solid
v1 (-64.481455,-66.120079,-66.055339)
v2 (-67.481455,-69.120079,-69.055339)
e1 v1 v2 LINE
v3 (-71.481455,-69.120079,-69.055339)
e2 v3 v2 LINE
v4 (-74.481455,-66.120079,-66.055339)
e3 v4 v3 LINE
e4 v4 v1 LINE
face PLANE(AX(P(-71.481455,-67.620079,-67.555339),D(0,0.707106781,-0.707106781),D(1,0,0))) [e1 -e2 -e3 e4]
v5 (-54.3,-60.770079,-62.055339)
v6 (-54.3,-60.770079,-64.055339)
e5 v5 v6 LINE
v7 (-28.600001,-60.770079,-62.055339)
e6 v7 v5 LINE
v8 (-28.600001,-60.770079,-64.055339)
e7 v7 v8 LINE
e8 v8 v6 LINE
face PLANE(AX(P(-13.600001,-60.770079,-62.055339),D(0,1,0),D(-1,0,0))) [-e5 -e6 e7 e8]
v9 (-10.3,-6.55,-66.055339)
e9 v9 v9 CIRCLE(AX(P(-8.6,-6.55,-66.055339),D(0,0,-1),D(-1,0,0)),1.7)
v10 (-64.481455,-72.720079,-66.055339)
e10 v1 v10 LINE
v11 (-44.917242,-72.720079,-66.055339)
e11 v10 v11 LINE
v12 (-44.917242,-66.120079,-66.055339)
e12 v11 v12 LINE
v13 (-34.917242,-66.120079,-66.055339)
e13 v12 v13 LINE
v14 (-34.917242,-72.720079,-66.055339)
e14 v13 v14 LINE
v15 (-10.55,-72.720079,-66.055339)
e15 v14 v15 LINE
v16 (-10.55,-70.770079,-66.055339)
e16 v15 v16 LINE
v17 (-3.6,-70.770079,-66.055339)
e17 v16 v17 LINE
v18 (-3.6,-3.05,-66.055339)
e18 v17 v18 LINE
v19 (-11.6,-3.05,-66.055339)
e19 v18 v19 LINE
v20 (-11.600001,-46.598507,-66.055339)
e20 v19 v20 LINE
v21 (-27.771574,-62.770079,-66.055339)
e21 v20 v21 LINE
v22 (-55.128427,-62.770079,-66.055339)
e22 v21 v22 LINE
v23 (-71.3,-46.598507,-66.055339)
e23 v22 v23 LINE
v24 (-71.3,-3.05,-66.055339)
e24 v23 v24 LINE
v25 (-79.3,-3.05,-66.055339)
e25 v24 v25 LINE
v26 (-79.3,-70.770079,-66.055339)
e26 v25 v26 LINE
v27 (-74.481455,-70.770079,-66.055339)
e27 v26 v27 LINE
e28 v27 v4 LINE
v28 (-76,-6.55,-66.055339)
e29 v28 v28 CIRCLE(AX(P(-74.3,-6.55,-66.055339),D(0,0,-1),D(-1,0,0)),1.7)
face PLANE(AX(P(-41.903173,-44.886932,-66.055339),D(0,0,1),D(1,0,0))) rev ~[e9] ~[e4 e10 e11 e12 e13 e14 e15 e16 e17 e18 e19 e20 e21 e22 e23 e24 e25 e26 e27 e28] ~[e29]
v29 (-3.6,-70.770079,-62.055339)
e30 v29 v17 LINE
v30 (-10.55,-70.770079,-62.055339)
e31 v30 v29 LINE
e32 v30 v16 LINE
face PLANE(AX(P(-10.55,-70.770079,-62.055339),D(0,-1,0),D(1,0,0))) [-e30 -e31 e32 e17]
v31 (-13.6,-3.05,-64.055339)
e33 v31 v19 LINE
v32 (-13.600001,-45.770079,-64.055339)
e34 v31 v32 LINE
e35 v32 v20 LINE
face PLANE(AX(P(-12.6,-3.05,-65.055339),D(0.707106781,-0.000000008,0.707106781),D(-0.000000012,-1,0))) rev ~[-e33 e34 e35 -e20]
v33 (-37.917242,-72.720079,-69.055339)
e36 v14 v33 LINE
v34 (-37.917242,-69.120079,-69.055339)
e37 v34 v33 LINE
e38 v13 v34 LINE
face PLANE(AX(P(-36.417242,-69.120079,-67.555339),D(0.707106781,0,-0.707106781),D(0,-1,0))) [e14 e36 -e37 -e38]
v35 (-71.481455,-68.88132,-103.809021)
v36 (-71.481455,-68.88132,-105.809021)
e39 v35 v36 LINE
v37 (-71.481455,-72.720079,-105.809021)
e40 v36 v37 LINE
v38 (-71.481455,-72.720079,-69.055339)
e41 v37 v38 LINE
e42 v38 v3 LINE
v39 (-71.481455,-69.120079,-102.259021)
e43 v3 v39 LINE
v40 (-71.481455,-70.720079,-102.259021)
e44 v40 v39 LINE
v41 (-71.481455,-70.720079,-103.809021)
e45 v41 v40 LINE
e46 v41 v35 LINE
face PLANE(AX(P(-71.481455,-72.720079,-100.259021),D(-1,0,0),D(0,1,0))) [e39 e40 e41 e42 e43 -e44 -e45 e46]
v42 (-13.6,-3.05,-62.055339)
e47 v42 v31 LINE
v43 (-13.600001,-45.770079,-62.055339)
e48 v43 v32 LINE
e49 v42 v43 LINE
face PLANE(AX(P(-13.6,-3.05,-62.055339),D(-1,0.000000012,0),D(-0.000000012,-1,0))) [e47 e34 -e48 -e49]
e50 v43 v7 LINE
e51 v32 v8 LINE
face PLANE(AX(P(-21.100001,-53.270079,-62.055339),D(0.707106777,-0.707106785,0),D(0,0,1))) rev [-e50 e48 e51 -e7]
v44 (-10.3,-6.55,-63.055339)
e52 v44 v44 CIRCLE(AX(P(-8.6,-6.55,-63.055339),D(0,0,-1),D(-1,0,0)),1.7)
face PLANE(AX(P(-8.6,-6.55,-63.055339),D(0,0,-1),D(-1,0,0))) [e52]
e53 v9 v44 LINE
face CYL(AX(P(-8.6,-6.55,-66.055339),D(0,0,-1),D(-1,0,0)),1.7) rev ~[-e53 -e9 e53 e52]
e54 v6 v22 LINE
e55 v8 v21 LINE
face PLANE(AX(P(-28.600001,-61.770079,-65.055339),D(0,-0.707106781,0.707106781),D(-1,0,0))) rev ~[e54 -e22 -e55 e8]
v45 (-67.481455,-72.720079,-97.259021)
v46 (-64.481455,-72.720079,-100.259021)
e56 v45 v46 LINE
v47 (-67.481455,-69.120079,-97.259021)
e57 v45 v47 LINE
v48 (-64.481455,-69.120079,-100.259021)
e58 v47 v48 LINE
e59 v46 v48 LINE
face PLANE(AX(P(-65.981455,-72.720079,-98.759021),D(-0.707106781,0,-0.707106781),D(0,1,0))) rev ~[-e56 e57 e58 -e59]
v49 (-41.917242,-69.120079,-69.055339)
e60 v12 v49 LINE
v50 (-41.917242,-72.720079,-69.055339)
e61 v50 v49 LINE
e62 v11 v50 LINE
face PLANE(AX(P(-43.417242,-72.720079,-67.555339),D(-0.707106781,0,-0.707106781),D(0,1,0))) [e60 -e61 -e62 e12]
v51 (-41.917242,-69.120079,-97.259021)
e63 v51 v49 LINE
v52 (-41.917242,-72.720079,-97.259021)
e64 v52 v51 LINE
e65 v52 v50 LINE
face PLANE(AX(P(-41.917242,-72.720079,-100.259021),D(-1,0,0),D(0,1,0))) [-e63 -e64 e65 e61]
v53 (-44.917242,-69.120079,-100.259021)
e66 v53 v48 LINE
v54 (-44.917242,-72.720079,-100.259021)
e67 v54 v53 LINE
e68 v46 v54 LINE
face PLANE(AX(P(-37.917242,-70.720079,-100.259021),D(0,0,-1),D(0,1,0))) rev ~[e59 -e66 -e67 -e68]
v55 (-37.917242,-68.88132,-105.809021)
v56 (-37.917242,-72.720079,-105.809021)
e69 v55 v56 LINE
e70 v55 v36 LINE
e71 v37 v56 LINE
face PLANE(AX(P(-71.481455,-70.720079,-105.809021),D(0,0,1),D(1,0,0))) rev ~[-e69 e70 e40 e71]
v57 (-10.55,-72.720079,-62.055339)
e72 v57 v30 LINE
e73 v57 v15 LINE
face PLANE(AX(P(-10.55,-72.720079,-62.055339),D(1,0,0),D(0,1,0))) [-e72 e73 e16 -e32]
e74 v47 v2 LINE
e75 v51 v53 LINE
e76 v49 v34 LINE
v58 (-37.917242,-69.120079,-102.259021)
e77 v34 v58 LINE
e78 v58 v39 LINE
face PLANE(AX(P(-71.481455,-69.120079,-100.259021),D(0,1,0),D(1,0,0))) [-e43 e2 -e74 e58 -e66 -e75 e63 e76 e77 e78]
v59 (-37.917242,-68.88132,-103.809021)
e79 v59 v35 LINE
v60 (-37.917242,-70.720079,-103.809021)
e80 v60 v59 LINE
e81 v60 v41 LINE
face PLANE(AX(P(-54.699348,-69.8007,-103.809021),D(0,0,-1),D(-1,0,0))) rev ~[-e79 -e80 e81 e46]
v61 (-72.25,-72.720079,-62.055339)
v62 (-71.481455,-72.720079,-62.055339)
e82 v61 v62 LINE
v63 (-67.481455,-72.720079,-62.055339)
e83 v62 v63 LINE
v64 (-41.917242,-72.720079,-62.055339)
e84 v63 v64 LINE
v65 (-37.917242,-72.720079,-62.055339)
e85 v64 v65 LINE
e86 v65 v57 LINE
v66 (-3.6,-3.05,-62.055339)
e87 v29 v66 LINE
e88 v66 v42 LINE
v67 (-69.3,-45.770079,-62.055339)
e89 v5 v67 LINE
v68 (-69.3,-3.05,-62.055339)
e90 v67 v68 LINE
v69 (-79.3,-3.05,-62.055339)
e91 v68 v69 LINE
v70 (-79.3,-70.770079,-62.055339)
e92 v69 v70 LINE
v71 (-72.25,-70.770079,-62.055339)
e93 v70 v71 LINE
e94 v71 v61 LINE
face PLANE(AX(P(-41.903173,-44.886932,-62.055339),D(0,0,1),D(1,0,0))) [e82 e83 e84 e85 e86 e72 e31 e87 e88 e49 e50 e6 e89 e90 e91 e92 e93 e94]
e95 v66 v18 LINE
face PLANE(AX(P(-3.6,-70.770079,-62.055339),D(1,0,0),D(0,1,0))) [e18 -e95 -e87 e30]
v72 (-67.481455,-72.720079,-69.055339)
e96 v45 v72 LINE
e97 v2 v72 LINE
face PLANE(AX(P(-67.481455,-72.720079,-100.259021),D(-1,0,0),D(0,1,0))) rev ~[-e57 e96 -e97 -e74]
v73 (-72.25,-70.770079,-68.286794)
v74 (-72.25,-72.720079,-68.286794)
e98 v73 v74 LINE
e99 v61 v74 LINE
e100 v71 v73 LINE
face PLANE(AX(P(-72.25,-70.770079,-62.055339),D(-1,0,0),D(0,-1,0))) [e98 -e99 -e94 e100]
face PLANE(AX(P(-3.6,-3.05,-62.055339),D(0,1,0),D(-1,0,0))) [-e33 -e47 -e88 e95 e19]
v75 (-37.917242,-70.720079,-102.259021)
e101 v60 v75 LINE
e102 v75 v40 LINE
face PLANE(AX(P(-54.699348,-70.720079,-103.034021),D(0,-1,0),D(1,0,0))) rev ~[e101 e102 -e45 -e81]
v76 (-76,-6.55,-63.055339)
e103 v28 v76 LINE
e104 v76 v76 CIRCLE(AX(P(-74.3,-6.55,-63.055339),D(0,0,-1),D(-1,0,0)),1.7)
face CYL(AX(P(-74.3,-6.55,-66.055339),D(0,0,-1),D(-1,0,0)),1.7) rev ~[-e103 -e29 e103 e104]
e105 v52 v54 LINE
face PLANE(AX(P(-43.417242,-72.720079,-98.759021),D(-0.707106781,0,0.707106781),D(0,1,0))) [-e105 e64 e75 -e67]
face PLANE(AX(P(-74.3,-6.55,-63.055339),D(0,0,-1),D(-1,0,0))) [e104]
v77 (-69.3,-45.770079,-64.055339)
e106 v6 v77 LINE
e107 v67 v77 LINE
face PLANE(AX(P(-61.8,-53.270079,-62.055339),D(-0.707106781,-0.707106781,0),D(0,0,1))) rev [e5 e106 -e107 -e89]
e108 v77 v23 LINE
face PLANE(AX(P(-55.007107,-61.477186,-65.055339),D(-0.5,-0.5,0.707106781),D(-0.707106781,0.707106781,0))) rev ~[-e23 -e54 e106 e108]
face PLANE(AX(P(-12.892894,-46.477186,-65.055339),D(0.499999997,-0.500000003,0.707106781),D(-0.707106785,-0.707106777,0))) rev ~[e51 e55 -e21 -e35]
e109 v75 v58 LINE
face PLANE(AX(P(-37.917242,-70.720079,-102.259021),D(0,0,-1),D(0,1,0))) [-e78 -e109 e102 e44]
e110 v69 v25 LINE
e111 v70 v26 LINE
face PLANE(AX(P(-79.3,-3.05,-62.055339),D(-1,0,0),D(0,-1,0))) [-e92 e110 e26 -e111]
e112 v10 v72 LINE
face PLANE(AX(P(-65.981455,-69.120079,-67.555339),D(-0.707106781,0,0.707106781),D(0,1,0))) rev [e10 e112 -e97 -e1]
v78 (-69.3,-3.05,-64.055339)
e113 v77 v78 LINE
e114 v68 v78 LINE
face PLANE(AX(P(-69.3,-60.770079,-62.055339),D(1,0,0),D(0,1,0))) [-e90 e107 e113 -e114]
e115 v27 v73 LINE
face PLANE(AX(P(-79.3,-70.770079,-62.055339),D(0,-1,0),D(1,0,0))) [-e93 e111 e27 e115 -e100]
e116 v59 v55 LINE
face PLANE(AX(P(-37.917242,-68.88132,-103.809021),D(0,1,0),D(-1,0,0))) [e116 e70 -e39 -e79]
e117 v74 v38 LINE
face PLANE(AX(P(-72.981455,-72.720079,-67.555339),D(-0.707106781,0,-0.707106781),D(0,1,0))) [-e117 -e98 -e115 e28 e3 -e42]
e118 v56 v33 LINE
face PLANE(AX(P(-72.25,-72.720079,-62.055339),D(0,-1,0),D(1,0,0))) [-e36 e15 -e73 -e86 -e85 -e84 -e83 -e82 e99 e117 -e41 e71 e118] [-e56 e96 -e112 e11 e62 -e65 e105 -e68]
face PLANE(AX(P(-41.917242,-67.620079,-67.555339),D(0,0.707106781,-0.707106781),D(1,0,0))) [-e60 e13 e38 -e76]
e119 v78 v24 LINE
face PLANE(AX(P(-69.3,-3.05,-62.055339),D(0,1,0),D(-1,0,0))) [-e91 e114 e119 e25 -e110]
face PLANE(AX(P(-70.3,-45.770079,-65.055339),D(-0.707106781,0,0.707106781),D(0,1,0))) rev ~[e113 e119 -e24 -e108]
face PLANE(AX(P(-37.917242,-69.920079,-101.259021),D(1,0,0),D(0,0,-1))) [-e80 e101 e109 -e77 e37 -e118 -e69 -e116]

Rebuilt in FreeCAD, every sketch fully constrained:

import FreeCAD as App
import Part
import Sketcher
from FreeCAD import Vector
Q = App.Units.Quantity


def edges_at(feature, points):
    """Names of the edges that pass closest to the given points."""
    edges = feature.Shape.Edges
    near = lambda p: min(range(len(edges)), key=lambda i: edges[i].distToShape(Part.Vertex(*p))[0])
    return sorted({f"Edge{near(p) + 1}" for p in points})


def add_polygon(sketch, points):
    """Adds a closed chain of lines whose ends are joined by coincident constraints."""
    first, n = sketch.GeometryCount, len(points)
    for a, b in zip(points, points[1:] + points[:1]):
        sketch.addGeometry(Part.LineSegment(App.Vector(*a, 0), App.Vector(*b, 0)), False)
    for i in range(n):
        sketch.addConstraint(Sketcher.Constraint("Coincident", first + i, 2, first + (i + 1) % n, 1))

doc = App.newDocument("Part")
params = doc.addObject("Spreadsheet::Sheet", "Params")
for row, (alias, value) in enumerate([
    ("pad1_length", "2 mm"),
    ("sketch2_height", "5.55 mm"),
    ("pad2_length", "2 mm"),
    ("sketch3_height", "2 mm"),
    ("sketch3_width", "1.6 mm"),
    ("pad3_length", "33.564213 mm"),
    ("sketch4_width", "4 mm"),
    ("sketch4_height", "3.6 mm"),
    ("pad4_length", "38.203681 mm"),
    ("sketch5_width", "4 mm"),
    ("sketch5_width2", "10 mm"),
    ("sketch5_width3", "55.699999 mm"),
    ("sketch5_height", "3.6 mm"),
    ("sketch5_width4", "7.05 mm"),
    ("pad5_length", "4 mm"),
    ("chamfer_size", "3 mm"),
    ("chamfer2_size", "15 mm"),
    ("sketch6_diameter", "3.4 mm"),
    ("pocket1_length", "3 mm"),
    ("chamfer3_size", "2 mm"),
], start=1):
    params.set(f"A{row}", alias)
    params.set(f"B{row}", "=" + value)
    params.setAlias(f"B{row}", alias)

body = doc.addObject("PartDesign::Body", "Body")

sketch1 = body.newObject("Sketcher::SketchObject", "Sketch")
sketch1.AttachmentSupport = (doc.getObject("XY_Plane"), [""])
sketch1.MapMode = "FlatFace"
sketch1.AttachmentOffset = App.Placement(Vector(0, 0, -103.809021), App.Rotation())
add_polygon(sketch1, [(-37.9, -68.9), (-37.9, -70.7), (-71.5, -70.7), (-71.5, -68.9)])
sketch1.addConstraint(Sketcher.Constraint("Vertical", 0))
sketch1.addConstraint(Sketcher.Constraint("Horizontal", 1))
sketch1.addConstraint(Sketcher.Constraint("Vertical", 2))
sketch1.addConstraint(Sketcher.Constraint("Horizontal", 3))
sketch1.addConstraint(Sketcher.Constraint("DistanceY", 0, 2, 0, 1, Q("1.838759 mm")))
sketch1.addConstraint(Sketcher.Constraint("DistanceX", 1, 2, 1, 1, Q("33.564213 mm")))
sketch1.addConstraint(Sketcher.Constraint("DistanceX", 0, 2, -1, 1, Q("37.917242 mm")))
sketch1.addConstraint(Sketcher.Constraint("DistanceY", 0, 2, -1, 1, Q("70.720079 mm")))
pad1 = body.newObject("PartDesign::Pad", "Pad")
pad1.Profile = sketch1
pad1.setExpression("Length", "Params.pad1_length")
pad1.Reversed = True

sketch2 = body.newObject("Sketcher::SketchObject", "Sketch001")
sketch2.AttachmentSupport = (doc.getObject("XZ_Plane"), [""])
sketch2.MapMode = "FlatFace"
sketch2.AttachmentOffset = App.Placement(Vector(0, 0, 70.720079), App.Rotation())
add_polygon(sketch2, [(-71, -100), (-71, -106), (-38, -106), (-38, -100)])
sketch2.addConstraint(Sketcher.Constraint("Vertical", 0))
sketch2.addConstraint(Sketcher.Constraint("Horizontal", 1))
sketch2.addConstraint(Sketcher.Constraint("Vertical", 2))
sketch2.addConstraint(Sketcher.Constraint("Horizontal", 3))
sketch2.addConstraint(Sketcher.Constraint("DistanceY", 0, 2, 0, 1, Q("5.55 mm")))
sketch2.addConstraint(Sketcher.Constraint("DistanceX", 1, 1, 1, 2, Q("33.564213 mm")))
sketch2.addConstraint(Sketcher.Constraint("DistanceY", 0, 2, -1, 1, Q("105.809021 mm")))
sketch2.addConstraint(Sketcher.Constraint("DistanceX", 1, 2, -1, 1, Q("37.917242 mm")))
sketch2.setExpression("Constraints[8]", "Params.sketch2_height")
pad2 = body.newObject("PartDesign::Pad", "Pad001")
pad2.Profile = sketch2
pad2.setExpression("Length", "Params.pad2_length")

sketch3 = body.newObject("Sketcher::SketchObject", "Sketch002")
sketch3.AttachmentSupport = (doc.getObject("YZ_Plane"), [""])
sketch3.MapMode = "FlatFace"
sketch3.AttachmentOffset = App.Placement(Vector(0, 0, -37.917242), App.Rotation())
add_polygon(sketch3, [(-69.1, -100.3), (-70.7, -100.3), (-70.7, -102.3), (-69.1, -102.3)])
sketch3.addConstraint(Sketcher.Constraint("Horizontal", 0))
sketch3.addConstraint(Sketcher.Constraint("Vertical", 1))
sketch3.addConstraint(Sketcher.Constraint("Horizontal", 2))
sketch3.addConstraint(Sketcher.Constraint("Vertical", 3))
sketch3.addConstraint(Sketcher.Constraint("DistanceY", 1, 2, 1, 1, Q("2 mm")))
sketch3.addConstraint(Sketcher.Constraint("DistanceX", 0, 2, 0, 1, Q("1.6 mm")))
sketch3.addConstraint(Sketcher.Constraint("DistanceX", 0, 2, -1, 1, Q("70.720079 mm")))
sketch3.addConstraint(Sketcher.Constraint("DistanceY", 0, 2, -1, 1, Q("100.259021 mm")))
sketch3.setExpression("Constraints[8]", "Params.sketch3_height")
sketch3.setExpression("Constraints[9]", "Params.sketch3_width")
pad3 = body.newObject("PartDesign::Pad", "Pad002")
pad3.Profile = sketch3
pad3.setExpression("Length", "Params.pad3_length")
pad3.Reversed = True

sketch4 = body.newObject("Sketcher::SketchObject", "Sketch003")
sketch4.AttachmentSupport = (doc.getObject("XY_Plane"), [""])
sketch4.MapMode = "FlatFace"
sketch4.AttachmentOffset = App.Placement(Vector(0, 0, -100.259021), App.Rotation())
add_polygon(sketch4, [(-71.5, -69.1), (-71.5, -72.7), (-67.5, -72.7), (-67.5, -69.1)])
add_polygon(sketch4, [(-41.9, -69.1), (-41.9, -72.7), (-37.9, -72.7), (-37.9, -69.1)])
sketch4.addConstraint(Sketcher.Constraint("Vertical", 0))
sketch4.addConstraint(Sketcher.Constraint("Horizontal", 1))
sketch4.addConstraint(Sketcher.Constraint("Vertical", 2))
sketch4.addConstraint(Sketcher.Constraint("Horizontal", 3))
sketch4.addConstraint(Sketcher.Constraint("Vertical", 4))
sketch4.addConstraint(Sketcher.Constraint("Horizontal", 5))
sketch4.addConstraint(Sketcher.Constraint("Vertical", 6))
sketch4.addConstraint(Sketcher.Constraint("Horizontal", 7))
sketch4.addConstraint(Sketcher.Constraint("Horizontal", 1, 2, 4, 2))
sketch4.addConstraint(Sketcher.Constraint("Horizontal", 3, 2, 6, 2))
sketch4.addConstraint(Sketcher.Constraint("Equal", 3, 5))
sketch4.addConstraint(Sketcher.Constraint("DistanceX", 1, 1, 1, 2, Q("4 mm")))
sketch4.addConstraint(Sketcher.Constraint("DistanceY", 0, 2, 0, 1, Q("3.6 mm")))
sketch4.addConstraint(Sketcher.Constraint("DistanceY", 0, 2, -1, 1, Q("72.720079 mm")))
sketch4.addConstraint(Sketcher.Constraint("DistanceX", 4, 2, -1, 1, Q("41.917242 mm")))
sketch4.addConstraint(Sketcher.Constraint("DistanceX", 0, 2, -1, 1, Q("71.481455 mm")))
sketch4.setExpression("Constraints[19]", "Params.sketch4_width")
sketch4.setExpression("Constraints[20]", "Params.sketch4_height")
pad4 = body.newObject("PartDesign::Pad", "Pad003")
pad4.Profile = sketch4
pad4.setExpression("Length", "Params.pad4_length")

sketch5 = body.newObject("Sketcher::SketchObject", "Sketch004")
sketch5.AttachmentSupport = (doc.getObject("XY_Plane"), [""])
sketch5.MapMode = "FlatFace"
sketch5.AttachmentOffset = App.Placement(Vector(0, 0, -62.055339), App.Rotation())
add_polygon(sketch5, [(-79.3, -70.8), (-72.2, -70.8), (-72.2, -72.7), (-71.5, -72.7), (-71.5, -69.1), (-67.5, -69.1), (-67.5, -72.7), (-41.9, -72.7), (-41.9, -69.1), (-37.9, -69.1), (-37.9, -72.7), (-10.6, -72.7), (-10.6, -70.8), (-3.6, -70.8), (-3.6, -3), (-13.6, -3), (-13.6, -60.8), (-69.3, -60.8), (-69.3, -3), (-79.3, -3)])
sketch5.addConstraint(Sketcher.Constraint("Horizontal", 0))
sketch5.addConstraint(Sketcher.Constraint("Vertical", 1))
sketch5.addConstraint(Sketcher.Constraint("Horizontal", 2))
sketch5.addConstraint(Sketcher.Constraint("Vertical", 3))
sketch5.addConstraint(Sketcher.Constraint("Horizontal", 4))
sketch5.addConstraint(Sketcher.Constraint("Vertical", 5))
sketch5.addConstraint(Sketcher.Constraint("Horizontal", 6))
sketch5.addConstraint(Sketcher.Constraint("Vertical", 7))
sketch5.addConstraint(Sketcher.Constraint("Horizontal", 8))
sketch5.addConstraint(Sketcher.Constraint("Vertical", 9))
sketch5.addConstraint(Sketcher.Constraint("Horizontal", 10))
sketch5.addConstraint(Sketcher.Constraint("Vertical", 11))
sketch5.addConstraint(Sketcher.Constraint("Horizontal", 12))
sketch5.addConstraint(Sketcher.Constraint("Vertical", 13))
sketch5.addConstraint(Sketcher.Constraint("Horizontal", 14))
sketch5.addConstraint(Sketcher.Constraint("Vertical", 15))
sketch5.addConstraint(Sketcher.Constraint("Horizontal", 16))
sketch5.addConstraint(Sketcher.Constraint("Vertical", 17))
sketch5.addConstraint(Sketcher.Constraint("Horizontal", 18))
sketch5.addConstraint(Sketcher.Constraint("Vertical", 19))
sketch5.addConstraint(Sketcher.Constraint("Horizontal", 2, 2, 5, 2))
sketch5.addConstraint(Sketcher.Constraint("Horizontal", 4, 2, 7, 2))
sketch5.addConstraint(Sketcher.Constraint("Horizontal", 6, 2, 9, 2))
sketch5.addConstraint(Sketcher.Constraint("Horizontal", 0, 2, 11, 2))
sketch5.addConstraint(Sketcher.Constraint("Horizontal", 14, 2, 17, 2))
sketch5.addConstraint(Sketcher.Constraint("Equal", 4, 8))
sketch5.addConstraint(Sketcher.Constraint("Equal", 14, 18))
sketch5.addConstraint(Sketcher.Constraint("DistanceX", 4, 1, 4, 2, Q("4 mm")))
sketch5.addConstraint(Sketcher.Constraint("DistanceX", 14, 2, 14, 1, Q("10 mm")))
sketch5.addConstraint(Sketcher.Constraint("DistanceX", 16, 2, 16, 1, Q("55.699999 mm")))
sketch5.addConstraint(Sketcher.Constraint("DistanceY", 3, 1, 3, 2, Q("3.6 mm")))
sketch5.addConstraint(Sketcher.Constraint("DistanceY", 11, 2, 15, 2, Q("10 mm")))
sketch5.addConstraint(Sketcher.Constraint("DistanceX", 0, 1, 0, 2, Q("7.05 mm")))
sketch5.addConstraint(Sketcher.Constraint("DistanceX", 12, 1, 12, 2, Q("6.95 mm")))
sketch5.addConstraint(Sketcher.Constraint("DistanceY", 1, 2, 1, 1, Q("1.95 mm")))
sketch5.addConstraint(Sketcher.Constraint("DistanceX", 12, 2, -1, 1, Q("3.6 mm")))
sketch5.addConstraint(Sketcher.Constraint("DistanceY", 13, 2, -1, 1, Q("3.05 mm")))
sketch5.addConstraint(Sketcher.Constraint("DistanceX", 10, 1, 10, 2, Q("27.367242 mm")))
sketch5.addConstraint(Sketcher.Constraint("DistanceY", 13, 1, 13, 2, Q("67.720079 mm")))
sketch5.addConstraint(Sketcher.Constraint("DistanceX", 2, 1, 2, 2, Q("0.768545 mm")))
sketch5.setExpression("Constraints[47]", "Params.sketch5_width")
sketch5.setExpression("Constraints[48]", "Params.sketch5_width2")
sketch5.setExpression("Constraints[49]", "Params.sketch5_width3")
sketch5.setExpression("Constraints[50]", "Params.sketch5_height")
sketch5.setExpression("Constraints[52]", "Params.sketch5_width4")
pad5 = body.newObject("PartDesign::Pad", "Pad004")
pad5.Profile = sketch5
pad5.setExpression("Length", "Params.pad5_length")
pad5.Reversed = True
doc.recompute()

chamfer = body.newObject("PartDesign::Chamfer", "Chamfer")
chamfer.Base = (pad5, edges_at(pad5, [
    (-41.917, -70.92, -100.259),
    (-67.481, -70.92, -100.259),
    (-41.917, -70.92, -66.055),
    (-39.917, -69.12, -66.055),
    (-37.917, -70.92, -66.055),
    (-67.481, -70.92, -66.055),
    (-69.481, -69.12, -66.055),
    (-71.481, -70.92, -66.055),
]))
chamfer.setExpression("Size", "Params.chamfer_size")
doc.recompute()

chamfer2 = body.newObject("PartDesign::Chamfer", "Chamfer001")
chamfer2.Base = (chamfer, edges_at(chamfer, [(-69.3, -60.77, -64.055), (-13.6, -60.77, -64.055)]))
chamfer2.setExpression("Size", "Params.chamfer2_size")

sketch6 = body.newObject("Sketcher::SketchObject", "Sketch005")
sketch6.AttachmentSupport = (doc.getObject("XY_Plane"), [""])
sketch6.MapMode = "FlatFace"
sketch6.AttachmentOffset = App.Placement(Vector(0, 0, -66.055339), App.Rotation())
sketch6.addGeometry(Part.Circle(Vector(-8.6, -6.5, 0), Vector(0, 0, 1), 1.7), False)
sketch6.addGeometry(Part.Circle(Vector(-74.3, -6.5, 0), Vector(0, 0, 1), 1.7), False)
sketch6.addConstraint(Sketcher.Constraint("Equal", 0, 1))
sketch6.addConstraint(Sketcher.Constraint("Horizontal", 0, 3, 1, 3))
sketch6.addConstraint(Sketcher.Constraint("Diameter", 0, Q("3.4 mm")))
sketch6.addConstraint(Sketcher.Constraint("DistanceX", 0, 3, -1, 1, Q("8.6 mm")))
sketch6.addConstraint(Sketcher.Constraint("DistanceX", 1, 3, -1, 1, Q("74.3 mm")))
sketch6.addConstraint(Sketcher.Constraint("DistanceY", 0, 3, -1, 1, Q("6.55 mm")))
sketch6.setExpression("Constraints[2]", "Params.sketch6_diameter")
pocket1 = body.newObject("PartDesign::Pocket", "Pocket")
pocket1.Profile = sketch6
pocket1.setExpression("Length", "Params.pocket1_length")
pocket1.Reversed = True
doc.recompute()

chamfer3 = body.newObject("PartDesign::Chamfer", "Chamfer002")
chamfer3.Base = (pocket1, edges_at(pocket1, [
    (-41.45, -60.77, -66.055),
    (-21.1, -53.27, -66.055),
    (-61.8, -53.27, -66.055),
    (-69.3, -24.41, -66.055),
    (-13.6, -24.41, -66.055),
]))
chamfer3.setExpression("Size", "Params.chamfer3_size")

doc.recompute()
